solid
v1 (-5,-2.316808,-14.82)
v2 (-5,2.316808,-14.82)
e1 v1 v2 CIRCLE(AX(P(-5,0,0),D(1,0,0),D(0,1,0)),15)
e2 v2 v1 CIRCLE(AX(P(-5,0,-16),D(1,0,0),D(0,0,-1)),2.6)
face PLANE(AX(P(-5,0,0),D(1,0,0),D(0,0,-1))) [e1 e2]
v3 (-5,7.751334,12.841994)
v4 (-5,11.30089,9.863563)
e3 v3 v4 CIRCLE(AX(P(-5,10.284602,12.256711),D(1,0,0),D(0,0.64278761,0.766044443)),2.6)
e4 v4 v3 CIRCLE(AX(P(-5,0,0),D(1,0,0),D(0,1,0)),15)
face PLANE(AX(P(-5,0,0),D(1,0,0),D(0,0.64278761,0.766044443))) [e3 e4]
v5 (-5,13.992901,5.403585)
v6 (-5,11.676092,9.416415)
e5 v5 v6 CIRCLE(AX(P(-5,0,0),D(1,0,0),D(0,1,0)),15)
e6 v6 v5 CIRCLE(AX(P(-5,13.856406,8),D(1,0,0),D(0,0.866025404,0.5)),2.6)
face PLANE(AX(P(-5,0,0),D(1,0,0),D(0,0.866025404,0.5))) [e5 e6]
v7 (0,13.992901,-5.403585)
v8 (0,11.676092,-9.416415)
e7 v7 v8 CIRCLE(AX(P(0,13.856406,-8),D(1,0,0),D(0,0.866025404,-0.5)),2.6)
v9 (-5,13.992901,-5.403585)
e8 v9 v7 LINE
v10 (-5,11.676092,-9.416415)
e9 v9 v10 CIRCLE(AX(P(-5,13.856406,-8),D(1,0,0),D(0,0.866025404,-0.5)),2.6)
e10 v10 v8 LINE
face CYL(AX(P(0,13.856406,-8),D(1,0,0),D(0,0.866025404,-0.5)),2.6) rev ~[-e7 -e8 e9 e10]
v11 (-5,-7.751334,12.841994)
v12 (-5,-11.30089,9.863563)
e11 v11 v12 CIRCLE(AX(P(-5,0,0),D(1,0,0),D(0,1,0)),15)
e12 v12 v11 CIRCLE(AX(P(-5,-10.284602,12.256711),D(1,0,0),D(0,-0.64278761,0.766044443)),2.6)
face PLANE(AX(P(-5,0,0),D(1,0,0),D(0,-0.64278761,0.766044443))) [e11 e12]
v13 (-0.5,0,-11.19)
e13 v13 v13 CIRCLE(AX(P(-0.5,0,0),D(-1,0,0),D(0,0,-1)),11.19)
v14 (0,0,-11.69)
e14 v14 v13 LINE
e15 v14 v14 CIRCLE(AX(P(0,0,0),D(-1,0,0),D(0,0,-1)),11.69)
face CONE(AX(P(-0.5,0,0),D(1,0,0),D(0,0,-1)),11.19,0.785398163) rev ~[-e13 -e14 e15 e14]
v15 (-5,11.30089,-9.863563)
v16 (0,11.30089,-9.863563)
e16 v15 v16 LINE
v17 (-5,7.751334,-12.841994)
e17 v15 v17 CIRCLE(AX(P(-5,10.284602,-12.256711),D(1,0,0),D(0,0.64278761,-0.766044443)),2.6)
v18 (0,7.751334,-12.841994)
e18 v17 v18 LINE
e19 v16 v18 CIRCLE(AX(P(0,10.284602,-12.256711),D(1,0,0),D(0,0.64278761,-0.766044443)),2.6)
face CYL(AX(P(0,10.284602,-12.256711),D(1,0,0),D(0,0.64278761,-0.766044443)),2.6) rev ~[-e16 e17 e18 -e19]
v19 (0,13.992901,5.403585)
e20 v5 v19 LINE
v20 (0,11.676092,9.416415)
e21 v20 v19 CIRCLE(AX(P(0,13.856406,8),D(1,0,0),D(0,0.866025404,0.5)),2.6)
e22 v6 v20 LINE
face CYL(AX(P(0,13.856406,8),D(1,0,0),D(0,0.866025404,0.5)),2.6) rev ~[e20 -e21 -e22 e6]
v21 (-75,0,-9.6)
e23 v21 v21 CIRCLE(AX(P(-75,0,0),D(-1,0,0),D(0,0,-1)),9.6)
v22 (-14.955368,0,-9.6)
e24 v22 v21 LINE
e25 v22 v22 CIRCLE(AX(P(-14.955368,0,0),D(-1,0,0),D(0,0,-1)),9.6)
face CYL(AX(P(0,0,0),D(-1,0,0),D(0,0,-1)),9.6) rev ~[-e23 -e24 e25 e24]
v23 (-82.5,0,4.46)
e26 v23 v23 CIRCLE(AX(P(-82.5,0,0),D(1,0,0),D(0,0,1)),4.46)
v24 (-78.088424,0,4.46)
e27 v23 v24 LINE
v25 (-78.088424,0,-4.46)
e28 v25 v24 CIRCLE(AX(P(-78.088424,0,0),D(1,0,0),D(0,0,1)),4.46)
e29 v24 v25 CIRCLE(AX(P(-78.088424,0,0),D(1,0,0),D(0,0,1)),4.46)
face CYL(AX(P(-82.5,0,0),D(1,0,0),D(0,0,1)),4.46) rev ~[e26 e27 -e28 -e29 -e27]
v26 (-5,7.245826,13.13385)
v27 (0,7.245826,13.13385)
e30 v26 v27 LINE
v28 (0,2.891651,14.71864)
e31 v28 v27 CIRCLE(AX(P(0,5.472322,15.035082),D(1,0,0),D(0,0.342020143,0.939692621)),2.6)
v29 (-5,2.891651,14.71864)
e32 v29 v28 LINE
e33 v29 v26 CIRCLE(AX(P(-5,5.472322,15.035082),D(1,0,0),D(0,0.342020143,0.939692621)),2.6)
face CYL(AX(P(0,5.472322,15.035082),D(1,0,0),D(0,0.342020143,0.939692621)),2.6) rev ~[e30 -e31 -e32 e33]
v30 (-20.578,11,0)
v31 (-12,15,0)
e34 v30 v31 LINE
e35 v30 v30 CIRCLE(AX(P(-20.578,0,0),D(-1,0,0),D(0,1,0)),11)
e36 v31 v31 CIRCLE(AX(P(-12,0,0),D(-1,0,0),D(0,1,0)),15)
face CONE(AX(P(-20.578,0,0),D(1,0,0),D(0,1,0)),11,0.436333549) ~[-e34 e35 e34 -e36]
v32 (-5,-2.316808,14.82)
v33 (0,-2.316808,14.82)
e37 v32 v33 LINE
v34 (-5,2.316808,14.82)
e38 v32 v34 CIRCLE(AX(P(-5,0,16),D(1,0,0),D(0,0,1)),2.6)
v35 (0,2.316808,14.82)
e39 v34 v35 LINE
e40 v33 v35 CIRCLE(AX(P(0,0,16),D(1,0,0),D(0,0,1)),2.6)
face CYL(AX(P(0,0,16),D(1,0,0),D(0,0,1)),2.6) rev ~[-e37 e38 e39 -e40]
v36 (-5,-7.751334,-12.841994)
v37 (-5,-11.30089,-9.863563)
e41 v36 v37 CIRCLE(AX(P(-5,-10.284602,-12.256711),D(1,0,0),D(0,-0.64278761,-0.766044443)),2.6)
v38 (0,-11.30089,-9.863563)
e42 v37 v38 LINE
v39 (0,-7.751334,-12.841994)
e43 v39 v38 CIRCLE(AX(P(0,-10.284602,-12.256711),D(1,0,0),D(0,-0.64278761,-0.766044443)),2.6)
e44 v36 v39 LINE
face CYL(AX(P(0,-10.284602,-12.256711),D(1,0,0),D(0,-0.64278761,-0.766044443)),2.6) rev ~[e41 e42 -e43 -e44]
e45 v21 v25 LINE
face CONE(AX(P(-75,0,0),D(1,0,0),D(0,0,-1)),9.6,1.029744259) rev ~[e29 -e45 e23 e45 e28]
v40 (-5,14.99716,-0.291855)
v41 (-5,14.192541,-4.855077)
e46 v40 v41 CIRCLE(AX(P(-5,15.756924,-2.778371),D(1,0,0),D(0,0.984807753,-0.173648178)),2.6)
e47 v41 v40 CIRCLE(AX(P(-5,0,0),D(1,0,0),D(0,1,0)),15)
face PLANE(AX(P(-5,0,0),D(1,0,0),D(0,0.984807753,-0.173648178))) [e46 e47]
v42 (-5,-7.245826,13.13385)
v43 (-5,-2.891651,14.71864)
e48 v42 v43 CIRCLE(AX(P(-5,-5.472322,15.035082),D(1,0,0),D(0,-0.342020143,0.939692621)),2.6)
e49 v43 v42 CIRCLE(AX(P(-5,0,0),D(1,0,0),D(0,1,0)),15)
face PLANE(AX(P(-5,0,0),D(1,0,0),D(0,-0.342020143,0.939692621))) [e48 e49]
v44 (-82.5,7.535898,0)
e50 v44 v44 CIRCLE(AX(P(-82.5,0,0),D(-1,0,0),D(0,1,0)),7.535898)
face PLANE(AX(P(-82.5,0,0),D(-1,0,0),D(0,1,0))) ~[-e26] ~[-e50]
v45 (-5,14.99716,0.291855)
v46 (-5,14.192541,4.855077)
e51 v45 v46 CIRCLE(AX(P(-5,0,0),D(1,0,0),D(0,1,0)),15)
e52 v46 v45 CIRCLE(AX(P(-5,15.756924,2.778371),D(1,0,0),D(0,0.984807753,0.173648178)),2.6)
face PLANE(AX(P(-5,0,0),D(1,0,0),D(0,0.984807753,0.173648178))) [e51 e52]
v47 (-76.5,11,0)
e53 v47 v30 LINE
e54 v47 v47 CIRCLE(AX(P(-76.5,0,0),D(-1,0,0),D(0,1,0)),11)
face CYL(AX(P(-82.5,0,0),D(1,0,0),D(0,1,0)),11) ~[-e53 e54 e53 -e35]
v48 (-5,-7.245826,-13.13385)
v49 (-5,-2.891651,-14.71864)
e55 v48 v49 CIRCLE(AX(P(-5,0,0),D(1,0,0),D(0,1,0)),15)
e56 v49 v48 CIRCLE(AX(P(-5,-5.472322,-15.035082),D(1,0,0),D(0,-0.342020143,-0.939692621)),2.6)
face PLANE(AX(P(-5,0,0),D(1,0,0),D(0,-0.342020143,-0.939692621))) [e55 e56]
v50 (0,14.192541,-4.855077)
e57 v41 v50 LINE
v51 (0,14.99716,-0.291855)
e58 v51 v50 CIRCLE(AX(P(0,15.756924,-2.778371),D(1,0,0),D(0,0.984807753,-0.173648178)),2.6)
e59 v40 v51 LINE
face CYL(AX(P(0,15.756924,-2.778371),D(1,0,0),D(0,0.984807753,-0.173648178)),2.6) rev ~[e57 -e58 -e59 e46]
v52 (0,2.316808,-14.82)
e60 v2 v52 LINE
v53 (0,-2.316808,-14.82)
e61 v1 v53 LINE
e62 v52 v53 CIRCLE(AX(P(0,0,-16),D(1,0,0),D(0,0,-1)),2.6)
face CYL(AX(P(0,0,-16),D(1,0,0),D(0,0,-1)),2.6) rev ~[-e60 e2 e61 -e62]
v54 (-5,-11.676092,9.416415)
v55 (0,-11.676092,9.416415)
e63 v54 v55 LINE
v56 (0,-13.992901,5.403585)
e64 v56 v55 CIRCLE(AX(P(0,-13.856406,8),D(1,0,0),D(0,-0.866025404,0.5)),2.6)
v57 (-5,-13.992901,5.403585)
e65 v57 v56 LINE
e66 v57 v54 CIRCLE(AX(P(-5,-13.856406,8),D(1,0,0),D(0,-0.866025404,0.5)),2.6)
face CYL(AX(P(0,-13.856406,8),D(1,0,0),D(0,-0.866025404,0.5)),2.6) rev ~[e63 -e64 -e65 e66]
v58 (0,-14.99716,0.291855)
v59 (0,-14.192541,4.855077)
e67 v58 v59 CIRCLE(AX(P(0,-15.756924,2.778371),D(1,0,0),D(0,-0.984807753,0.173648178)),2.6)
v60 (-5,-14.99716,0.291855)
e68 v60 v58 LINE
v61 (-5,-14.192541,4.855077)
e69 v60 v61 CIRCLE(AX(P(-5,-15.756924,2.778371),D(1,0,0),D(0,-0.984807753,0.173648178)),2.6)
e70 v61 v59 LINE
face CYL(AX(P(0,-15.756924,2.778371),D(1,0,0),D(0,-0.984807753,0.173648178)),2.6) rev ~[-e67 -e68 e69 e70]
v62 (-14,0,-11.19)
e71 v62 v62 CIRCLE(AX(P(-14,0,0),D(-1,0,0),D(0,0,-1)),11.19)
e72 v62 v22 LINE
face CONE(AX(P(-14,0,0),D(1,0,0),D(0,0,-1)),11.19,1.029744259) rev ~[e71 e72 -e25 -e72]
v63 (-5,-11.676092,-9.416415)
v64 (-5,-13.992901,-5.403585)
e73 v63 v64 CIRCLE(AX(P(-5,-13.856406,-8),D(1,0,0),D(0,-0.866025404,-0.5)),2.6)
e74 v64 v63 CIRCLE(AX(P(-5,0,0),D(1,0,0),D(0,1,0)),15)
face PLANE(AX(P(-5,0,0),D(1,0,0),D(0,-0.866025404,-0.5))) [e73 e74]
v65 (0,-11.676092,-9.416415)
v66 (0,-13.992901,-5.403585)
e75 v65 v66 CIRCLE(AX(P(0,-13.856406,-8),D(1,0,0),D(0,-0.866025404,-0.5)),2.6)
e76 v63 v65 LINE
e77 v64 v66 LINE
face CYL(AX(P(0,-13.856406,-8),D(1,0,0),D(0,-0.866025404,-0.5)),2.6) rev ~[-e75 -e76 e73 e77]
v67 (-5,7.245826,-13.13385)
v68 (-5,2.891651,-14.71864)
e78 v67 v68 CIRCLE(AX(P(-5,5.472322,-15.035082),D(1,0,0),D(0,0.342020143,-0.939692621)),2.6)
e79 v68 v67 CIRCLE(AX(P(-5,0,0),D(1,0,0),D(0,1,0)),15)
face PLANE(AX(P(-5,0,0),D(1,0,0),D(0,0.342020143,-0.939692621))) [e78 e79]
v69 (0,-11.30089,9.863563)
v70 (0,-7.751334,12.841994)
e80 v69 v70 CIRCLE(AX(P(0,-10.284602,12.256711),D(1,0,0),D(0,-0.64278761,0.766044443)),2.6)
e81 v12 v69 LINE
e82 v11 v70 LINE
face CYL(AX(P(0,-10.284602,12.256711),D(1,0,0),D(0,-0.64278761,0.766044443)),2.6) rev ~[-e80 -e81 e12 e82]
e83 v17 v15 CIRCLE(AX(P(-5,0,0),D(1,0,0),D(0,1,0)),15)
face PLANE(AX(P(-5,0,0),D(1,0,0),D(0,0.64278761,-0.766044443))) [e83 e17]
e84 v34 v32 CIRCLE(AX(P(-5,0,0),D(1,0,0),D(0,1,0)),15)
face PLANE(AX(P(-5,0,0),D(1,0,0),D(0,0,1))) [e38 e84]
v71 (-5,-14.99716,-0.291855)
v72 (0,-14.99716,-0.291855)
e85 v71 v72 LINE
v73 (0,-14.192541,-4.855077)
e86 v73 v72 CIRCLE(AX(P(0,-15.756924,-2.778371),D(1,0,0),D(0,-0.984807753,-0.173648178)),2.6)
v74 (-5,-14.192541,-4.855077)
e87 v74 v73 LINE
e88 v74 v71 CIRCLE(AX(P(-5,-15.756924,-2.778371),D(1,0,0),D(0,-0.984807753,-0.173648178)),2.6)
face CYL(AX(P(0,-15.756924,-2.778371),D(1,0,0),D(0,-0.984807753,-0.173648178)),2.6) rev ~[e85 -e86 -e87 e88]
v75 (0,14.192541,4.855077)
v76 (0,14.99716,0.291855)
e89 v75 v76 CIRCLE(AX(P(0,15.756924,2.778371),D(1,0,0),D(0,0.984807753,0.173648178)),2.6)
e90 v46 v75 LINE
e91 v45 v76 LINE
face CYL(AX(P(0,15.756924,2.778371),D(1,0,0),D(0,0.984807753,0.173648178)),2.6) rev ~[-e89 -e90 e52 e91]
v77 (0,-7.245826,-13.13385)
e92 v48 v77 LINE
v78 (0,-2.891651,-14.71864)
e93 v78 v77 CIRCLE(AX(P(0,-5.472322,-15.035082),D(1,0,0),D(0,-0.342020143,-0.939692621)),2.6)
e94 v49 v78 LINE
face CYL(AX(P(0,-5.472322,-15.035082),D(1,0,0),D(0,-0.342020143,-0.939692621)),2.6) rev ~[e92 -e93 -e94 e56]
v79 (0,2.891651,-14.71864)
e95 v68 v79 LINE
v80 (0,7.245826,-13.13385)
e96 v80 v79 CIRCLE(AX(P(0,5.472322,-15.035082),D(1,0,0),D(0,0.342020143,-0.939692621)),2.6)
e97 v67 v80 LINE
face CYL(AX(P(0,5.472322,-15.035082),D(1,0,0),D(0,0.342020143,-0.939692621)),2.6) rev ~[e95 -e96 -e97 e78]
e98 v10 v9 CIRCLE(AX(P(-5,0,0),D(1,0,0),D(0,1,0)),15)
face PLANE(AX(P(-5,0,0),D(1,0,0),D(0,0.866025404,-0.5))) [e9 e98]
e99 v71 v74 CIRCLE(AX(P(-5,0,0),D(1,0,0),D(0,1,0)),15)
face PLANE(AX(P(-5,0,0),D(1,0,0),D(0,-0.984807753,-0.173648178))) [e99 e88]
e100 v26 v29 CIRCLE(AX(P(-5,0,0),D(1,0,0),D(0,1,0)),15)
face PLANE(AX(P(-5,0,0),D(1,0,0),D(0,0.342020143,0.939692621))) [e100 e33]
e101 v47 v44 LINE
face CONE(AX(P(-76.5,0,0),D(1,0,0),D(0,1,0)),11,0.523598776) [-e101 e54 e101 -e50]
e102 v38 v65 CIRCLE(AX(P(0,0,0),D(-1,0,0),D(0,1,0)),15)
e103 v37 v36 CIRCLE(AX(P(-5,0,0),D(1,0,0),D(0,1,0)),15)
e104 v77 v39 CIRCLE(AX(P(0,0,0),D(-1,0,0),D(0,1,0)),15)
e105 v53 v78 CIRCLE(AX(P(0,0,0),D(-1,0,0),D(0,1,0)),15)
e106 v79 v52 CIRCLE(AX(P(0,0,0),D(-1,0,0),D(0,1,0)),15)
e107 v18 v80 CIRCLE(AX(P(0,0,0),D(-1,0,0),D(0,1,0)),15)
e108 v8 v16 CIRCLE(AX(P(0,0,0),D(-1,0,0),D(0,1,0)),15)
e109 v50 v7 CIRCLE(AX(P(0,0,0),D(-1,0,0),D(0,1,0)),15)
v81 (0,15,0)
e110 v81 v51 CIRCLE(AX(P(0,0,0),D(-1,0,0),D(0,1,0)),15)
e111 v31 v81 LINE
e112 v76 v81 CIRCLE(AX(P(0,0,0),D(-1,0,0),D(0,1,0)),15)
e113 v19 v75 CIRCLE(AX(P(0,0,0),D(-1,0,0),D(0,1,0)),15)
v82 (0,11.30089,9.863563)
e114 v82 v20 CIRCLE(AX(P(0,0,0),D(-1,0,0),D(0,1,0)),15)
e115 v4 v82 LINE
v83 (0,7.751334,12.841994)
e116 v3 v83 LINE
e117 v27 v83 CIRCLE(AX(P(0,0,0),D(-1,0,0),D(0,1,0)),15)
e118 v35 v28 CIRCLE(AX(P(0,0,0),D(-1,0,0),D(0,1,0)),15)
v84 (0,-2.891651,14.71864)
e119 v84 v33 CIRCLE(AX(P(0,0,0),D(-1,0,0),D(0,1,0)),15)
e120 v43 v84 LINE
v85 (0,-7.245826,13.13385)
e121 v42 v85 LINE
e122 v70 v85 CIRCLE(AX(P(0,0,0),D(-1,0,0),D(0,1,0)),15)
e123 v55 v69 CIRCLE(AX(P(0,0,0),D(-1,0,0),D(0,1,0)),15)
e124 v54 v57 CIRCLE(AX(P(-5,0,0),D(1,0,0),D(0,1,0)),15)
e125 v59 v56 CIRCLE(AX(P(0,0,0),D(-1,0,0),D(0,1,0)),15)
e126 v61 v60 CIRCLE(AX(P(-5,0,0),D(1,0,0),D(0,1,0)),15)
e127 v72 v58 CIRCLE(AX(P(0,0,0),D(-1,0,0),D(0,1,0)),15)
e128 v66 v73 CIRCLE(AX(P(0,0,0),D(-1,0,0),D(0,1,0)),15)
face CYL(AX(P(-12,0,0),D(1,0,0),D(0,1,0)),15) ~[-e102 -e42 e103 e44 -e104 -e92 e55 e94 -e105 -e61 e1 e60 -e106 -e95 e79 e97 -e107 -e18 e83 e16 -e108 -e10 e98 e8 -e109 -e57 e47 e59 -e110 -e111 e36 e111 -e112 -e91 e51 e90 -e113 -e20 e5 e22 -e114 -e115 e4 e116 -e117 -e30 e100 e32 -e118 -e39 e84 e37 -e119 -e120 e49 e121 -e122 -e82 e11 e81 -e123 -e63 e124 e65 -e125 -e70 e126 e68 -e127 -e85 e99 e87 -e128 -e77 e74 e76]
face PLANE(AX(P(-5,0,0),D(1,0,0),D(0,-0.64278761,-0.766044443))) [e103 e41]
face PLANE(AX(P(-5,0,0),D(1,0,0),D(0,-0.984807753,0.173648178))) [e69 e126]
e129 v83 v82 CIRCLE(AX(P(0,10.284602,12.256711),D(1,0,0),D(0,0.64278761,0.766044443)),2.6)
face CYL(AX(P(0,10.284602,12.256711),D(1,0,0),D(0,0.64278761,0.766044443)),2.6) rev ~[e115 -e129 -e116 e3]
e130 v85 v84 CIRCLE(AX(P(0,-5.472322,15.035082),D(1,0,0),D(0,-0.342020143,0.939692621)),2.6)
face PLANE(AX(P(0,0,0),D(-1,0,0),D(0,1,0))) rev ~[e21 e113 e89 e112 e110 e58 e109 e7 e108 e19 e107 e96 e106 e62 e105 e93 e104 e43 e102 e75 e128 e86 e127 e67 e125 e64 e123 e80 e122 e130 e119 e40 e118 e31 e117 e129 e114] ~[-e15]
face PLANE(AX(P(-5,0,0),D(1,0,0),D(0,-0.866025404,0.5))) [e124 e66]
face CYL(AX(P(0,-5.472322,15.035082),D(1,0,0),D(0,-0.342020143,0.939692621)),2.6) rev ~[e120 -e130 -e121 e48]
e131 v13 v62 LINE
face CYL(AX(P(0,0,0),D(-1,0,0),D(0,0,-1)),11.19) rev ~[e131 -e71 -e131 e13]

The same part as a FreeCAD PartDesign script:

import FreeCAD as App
import Part
import Sketcher
Q = App.Units.Quantity


def edges_at(feature, points):
    """Names of the edges that pass closest to the given points."""
    edges = feature.Shape.Edges
    near = lambda p: min(range(len(edges)), key=lambda i: edges[i].distToShape(Part.Vertex(*p))[0])
    return sorted({f"Edge{near(p) + 1}" for p in points})


def add_polygon(sketch, points):
    """Adds a closed chain of lines whose ends are joined by coincident constraints."""
    first, n = sketch.GeometryCount, len(points)
    for a, b in zip(points, points[1:] + points[:1]):
        sketch.addGeometry(Part.LineSegment(App.Vector(*a, 0), App.Vector(*b, 0)), False)
    for i in range(n):
        sketch.addConstraint(Sketcher.Constraint("Coincident", first + i, 2, first + (i + 1) % n, 1))

doc = App.newDocument("Part")
params = doc.addObject("Spreadsheet::Sheet", "Params")
for row, (alias, value) in enumerate([
    ("sketch1_width", "12 mm"),
    ("sketch1_width2", "82.5 mm"),
    ("sketch1_height", "15 mm"),
    ("sketch1_height2", "11 mm"),
    ("revolution_angle", "360 deg"),
    ("sketch2_diameter", "22.38 mm"),
    ("hole_diameter", "22.38 mm"),
    ("hole_depth", "14 mm"),
    ("sketch3_diameter", "19.2 mm"),
    ("hole2_diameter", "19.2 mm"),
    ("hole2_depth", "75 mm"),
    ("sketch4_diameter", "8.92 mm"),
    ("hole3_diameter", "8.92 mm"),
    ("hole3_depth", "12 mm"),
    ("chamfer_size", "6 mm"),
    ("sketch5_diameter", "5.2 mm"),
    ("pocket1_length", "5 mm"),
    ("chamfer2_size", "0.5 mm"),
], start=1):
    params.set(f"A{row}", alias)
    params.set(f"B{row}", "=" + value)
    params.setAlias(f"B{row}", alias)

body = doc.addObject("PartDesign::Body", "Body")

sketch1 = body.newObject("Sketcher::SketchObject", "Sketch")
sketch1.AttachmentSupport = (doc.getObject("XY_Plane"), [""])
sketch1.MapMode = "FlatFace"
add_polygon(sketch1, [(-82, 0), (0, 0), (0, 15), (-12, 15), (-21, 11), (-82, 11)])
sketch1.addConstraint([
    Sketcher.Constraint("Horizontal", 0),
    Sketcher.Constraint("Vertical", 1),
    Sketcher.Constraint("Horizontal", 2),
    Sketcher.Constraint("Horizontal", 4),
    Sketcher.Constraint("Vertical", 5),
    Sketcher.Constraint("Coincident", 0, 2, -1, 1),
    Sketcher.Constraint("DistanceX", 2, 2, 2, 1, 12.0),
    Sketcher.Constraint("DistanceX", 0, 1, 0, 2, 82.5),
    Sketcher.Constraint("DistanceY", 1, 1, 1, 2, 15.0),
    Sketcher.Constraint("DistanceY", 5, 2, 5, 1, 11.0),
    Sketcher.Constraint("Angle", 3, Q("-155 deg")),
])
sketch1.setExpression("Constraints[12]", "Params.sketch1_width")
sketch1.setExpression("Constraints[13]", "Params.sketch1_width2")
sketch1.setExpression("Constraints[14]", "Params.sketch1_height")
sketch1.setExpression("Constraints[15]", "Params.sketch1_height2")
revolution = body.newObject("PartDesign::Revolution", "Revolution")
revolution.Profile = sketch1
revolution.ReferenceAxis = (sketch1, ["H_Axis"])
revolution.setExpression("Angle", "Params.revolution_angle")

sketch2 = body.newObject("Sketcher::SketchObject", "Sketch001")
sketch2.AttachmentSupport = (doc.getObject("YZ_Plane"), [""])
sketch2.MapMode = "FlatFace"
sketch2.addGeometry(Part.Circle(App.Vector(0, 0, 0), App.Vector(0, 0, 1), 11), False)
sketch2.addConstraint([
    Sketcher.Constraint("Coincident", 0, 3, -1, 1),
    Sketcher.Constraint("Diameter", 0, 22.38),
])
sketch2.setExpression("Constraints[1]", "Params.sketch2_diameter")
doc.recompute()
hole = body.newObject("PartDesign::Hole", "Hole")
hole.Profile = sketch2
hole.ThreadType = "None"
hole.setExpression("Diameter", "Params.hole_diameter")
hole.DepthType = "Dimension"
hole.setExpression("Depth", "Params.hole_depth")
hole.DrillPoint = "Angled"
hole.DrillPointAngle = 118

sketch3 = body.newObject("Sketcher::SketchObject", "Sketch002")
sketch3.AttachmentSupport = (doc.getObject("YZ_Plane"), [""])
sketch3.MapMode = "FlatFace"
sketch3.addGeometry(Part.Circle(App.Vector(0, 0, 0), App.Vector(0, 0, 1), 10), False)
sketch3.addConstraint([
    Sketcher.Constraint("Coincident", 0, 3, -1, 1),
    Sketcher.Constraint("Diameter", 0, 19.2),
])
sketch3.setExpression("Constraints[1]", "Params.sketch3_diameter")
doc.recompute()
hole2 = body.newObject("PartDesign::Hole", "Hole001")
hole2.Profile = sketch3
hole2.ThreadType = "None"
hole2.setExpression("Diameter", "Params.hole2_diameter")
hole2.DepthType = "Dimension"
hole2.setExpression("Depth", "Params.hole2_depth")
hole2.DrillPoint = "Angled"
hole2.DrillPointAngle = 118

sketch4 = body.newObject("Sketcher::SketchObject", "Sketch003")
sketch4.AttachmentSupport = (doc.getObject("YZ_Plane"), [""])
sketch4.MapMode = "FlatFace"
sketch4.AttachmentOffset = App.Placement(App.Vector(0, 0, -82.5), App.Rotation())
sketch4.addGeometry(Part.Circle(App.Vector(0, 0, 0), App.Vector(0, 0, 1), 4.5), False)
sketch4.addConstraint([
    Sketcher.Constraint("Coincident", 0, 3, -1, 1),
    Sketcher.Constraint("Diameter", 0, 8.92),
])
sketch4.setExpression("Constraints[1]", "Params.sketch4_diameter")
doc.recompute()
hole3 = body.newObject("PartDesign::Hole", "Hole002")
hole3.Profile = sketch4
hole3.ThreadType = "None"
hole3.setExpression("Diameter", "Params.hole3_diameter")
hole3.DepthType = "Dimension"
hole3.setExpression("Depth", "Params.hole3_depth")
hole3.DrillPoint = "Angled"
hole3.DrillPointAngle = 118
hole3.Reversed = True
doc.recompute()

chamfer = body.newObject("PartDesign::Chamfer", "Chamfer")
chamfer.Base = (hole3, edges_at(hole3, [(-82.5, -11, 0)]))
chamfer.ChamferType = "Distance and Angle"
chamfer.setExpression("Size", "Params.chamfer_size")
chamfer.Angle = 30

sketch5 = body.newObject("Sketcher::SketchObject", "Sketch004")
sketch5.AttachmentSupport = (doc.getObject("YZ_Plane"), [""])
sketch5.MapMode = "FlatFace"
sketch5.addGeometry(Part.Circle(App.Vector(0, -16, 0), App.Vector(0, 0, 1), 2.6), False)
sketch5.addConstraint([
    Sketcher.Constraint("PointOnObject", 0, 3, -2),
    Sketcher.Constraint("Diameter", 0, 5.2),
    Sketcher.Constraint("DistanceY", 0, 3, -1, 1, 16.0),
])
sketch5.setExpression("Constraints[1]", "Params.sketch5_diameter")
pocket1 = body.newObject("PartDesign::Pocket", "Pocket")
pocket1.Profile = sketch5
pocket1.setExpression("Length", "Params.pocket1_length")
doc.recompute()

polarpattern = body.newObject("PartDesign::PolarPattern", "PolarPattern")
polarpattern.Originals = [pocket1]
polarpattern.Axis = (doc.getObject("X_Axis"), [""])
polarpattern.Angle = 360
polarpattern.Occurrences = 18
body.Tip = polarpattern
doc.recompute()

chamfer2 = body.newObject("PartDesign::Chamfer", "Chamfer001")
chamfer2.Base = (polarpattern, edges_at(polarpattern, [(0, 0, 11.19)]))
chamfer2.setExpression("Size", "Params.chamfer2_size")

doc.recompute()
